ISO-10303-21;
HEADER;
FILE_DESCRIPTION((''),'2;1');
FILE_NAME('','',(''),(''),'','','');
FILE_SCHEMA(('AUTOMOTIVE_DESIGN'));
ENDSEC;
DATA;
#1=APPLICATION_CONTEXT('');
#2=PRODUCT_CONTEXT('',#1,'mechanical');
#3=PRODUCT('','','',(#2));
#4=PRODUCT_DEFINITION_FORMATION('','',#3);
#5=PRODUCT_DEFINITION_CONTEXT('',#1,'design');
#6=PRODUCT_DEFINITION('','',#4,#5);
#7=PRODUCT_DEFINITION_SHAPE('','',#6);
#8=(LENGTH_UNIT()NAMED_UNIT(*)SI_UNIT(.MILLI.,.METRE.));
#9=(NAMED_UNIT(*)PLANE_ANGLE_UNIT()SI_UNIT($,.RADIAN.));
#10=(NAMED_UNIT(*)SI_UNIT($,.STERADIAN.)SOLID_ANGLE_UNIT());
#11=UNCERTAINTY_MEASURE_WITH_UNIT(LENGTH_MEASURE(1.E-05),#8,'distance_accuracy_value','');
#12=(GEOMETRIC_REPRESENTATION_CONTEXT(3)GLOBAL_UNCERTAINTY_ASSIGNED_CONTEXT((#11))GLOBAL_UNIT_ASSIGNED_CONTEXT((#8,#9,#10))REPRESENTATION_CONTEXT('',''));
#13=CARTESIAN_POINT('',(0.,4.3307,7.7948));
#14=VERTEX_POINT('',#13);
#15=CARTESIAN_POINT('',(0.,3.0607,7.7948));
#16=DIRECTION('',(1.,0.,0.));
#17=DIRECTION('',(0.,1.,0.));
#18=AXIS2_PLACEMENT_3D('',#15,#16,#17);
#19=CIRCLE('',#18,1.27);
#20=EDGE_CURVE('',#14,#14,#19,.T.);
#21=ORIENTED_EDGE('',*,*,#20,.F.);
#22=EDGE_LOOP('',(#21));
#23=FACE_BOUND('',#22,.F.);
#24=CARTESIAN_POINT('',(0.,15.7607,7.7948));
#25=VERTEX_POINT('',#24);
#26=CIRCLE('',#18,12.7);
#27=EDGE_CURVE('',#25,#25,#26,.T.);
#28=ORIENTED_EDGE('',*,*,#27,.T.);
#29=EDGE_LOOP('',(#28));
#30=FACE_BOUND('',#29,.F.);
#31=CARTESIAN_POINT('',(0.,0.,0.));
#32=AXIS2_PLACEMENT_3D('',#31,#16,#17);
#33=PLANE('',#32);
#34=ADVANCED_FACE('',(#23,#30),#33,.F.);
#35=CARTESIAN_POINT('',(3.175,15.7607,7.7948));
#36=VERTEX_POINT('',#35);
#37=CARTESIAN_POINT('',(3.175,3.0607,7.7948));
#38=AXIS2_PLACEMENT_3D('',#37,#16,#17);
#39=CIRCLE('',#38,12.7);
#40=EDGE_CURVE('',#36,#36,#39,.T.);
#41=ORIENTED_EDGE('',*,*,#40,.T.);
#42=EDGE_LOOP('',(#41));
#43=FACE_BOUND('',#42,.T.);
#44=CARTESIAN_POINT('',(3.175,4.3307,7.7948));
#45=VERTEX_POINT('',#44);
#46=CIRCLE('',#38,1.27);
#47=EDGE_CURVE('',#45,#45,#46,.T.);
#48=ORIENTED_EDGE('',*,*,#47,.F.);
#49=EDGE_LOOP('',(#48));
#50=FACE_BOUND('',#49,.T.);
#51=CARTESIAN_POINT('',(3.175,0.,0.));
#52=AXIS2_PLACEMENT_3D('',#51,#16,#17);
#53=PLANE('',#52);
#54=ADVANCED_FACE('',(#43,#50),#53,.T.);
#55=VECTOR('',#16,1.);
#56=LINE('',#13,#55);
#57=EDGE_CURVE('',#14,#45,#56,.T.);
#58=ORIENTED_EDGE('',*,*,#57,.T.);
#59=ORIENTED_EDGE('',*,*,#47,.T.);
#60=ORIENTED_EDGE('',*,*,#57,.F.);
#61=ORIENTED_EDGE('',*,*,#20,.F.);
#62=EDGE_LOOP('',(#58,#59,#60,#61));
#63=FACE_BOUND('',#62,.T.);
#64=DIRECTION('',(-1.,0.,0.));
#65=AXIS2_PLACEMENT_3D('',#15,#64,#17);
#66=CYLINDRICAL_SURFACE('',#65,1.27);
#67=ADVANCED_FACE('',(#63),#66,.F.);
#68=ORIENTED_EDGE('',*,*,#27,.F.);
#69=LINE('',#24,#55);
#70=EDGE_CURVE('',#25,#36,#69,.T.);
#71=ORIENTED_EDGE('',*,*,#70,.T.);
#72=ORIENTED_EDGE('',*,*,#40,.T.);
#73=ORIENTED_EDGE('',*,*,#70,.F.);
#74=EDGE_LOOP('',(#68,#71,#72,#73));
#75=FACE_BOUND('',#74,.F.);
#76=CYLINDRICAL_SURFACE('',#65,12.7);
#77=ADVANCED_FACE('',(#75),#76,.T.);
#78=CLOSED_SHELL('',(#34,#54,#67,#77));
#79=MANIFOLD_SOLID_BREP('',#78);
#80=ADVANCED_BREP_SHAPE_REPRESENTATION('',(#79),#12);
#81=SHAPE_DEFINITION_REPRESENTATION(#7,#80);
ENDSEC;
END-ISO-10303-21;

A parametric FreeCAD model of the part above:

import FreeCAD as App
import Part
import Sketcher

V = App.Vector
Q = App.Units.Quantity

doc = App.newDocument("Part")
body = doc.addObject("PartDesign::Body", "Body")

# Sketch on YZ plane
sketch1 = body.newObject("Sketcher::SketchObject", "Sketch")
sketch1.AttachmentSupport = (doc.getObject("YZ_Plane"), [""])
sketch1.MapMode = "FlatFace"
sketch1.addGeometry([
    Part.Circle(V(3.1, 7.8, 0), V(0, 0, 1), 12.7),
    Part.Circle(V(3.1, 7.8, 0), V(0, 0, 1), 1.3),
], False)
sketch1.addConstraint([
    Sketcher.Constraint("Coincident", 1, 3, 0, 3),
    Sketcher.Constraint("Diameter", 0, Q("1 in")),
    Sketcher.Constraint("Diameter", 1, Q("0.1 in")),
    Sketcher.Constraint("DistanceX", -1, 1, 0, 3, Q("0.1205 in")),
    Sketcher.Constraint("DistanceY", -1, 1, 0, 3, 7.7948),
])
pad1 = body.newObject("PartDesign::Pad", "Pad")
pad1.Profile = sketch1
pad1.Length = Q("0.125 in")

doc.recompute()
